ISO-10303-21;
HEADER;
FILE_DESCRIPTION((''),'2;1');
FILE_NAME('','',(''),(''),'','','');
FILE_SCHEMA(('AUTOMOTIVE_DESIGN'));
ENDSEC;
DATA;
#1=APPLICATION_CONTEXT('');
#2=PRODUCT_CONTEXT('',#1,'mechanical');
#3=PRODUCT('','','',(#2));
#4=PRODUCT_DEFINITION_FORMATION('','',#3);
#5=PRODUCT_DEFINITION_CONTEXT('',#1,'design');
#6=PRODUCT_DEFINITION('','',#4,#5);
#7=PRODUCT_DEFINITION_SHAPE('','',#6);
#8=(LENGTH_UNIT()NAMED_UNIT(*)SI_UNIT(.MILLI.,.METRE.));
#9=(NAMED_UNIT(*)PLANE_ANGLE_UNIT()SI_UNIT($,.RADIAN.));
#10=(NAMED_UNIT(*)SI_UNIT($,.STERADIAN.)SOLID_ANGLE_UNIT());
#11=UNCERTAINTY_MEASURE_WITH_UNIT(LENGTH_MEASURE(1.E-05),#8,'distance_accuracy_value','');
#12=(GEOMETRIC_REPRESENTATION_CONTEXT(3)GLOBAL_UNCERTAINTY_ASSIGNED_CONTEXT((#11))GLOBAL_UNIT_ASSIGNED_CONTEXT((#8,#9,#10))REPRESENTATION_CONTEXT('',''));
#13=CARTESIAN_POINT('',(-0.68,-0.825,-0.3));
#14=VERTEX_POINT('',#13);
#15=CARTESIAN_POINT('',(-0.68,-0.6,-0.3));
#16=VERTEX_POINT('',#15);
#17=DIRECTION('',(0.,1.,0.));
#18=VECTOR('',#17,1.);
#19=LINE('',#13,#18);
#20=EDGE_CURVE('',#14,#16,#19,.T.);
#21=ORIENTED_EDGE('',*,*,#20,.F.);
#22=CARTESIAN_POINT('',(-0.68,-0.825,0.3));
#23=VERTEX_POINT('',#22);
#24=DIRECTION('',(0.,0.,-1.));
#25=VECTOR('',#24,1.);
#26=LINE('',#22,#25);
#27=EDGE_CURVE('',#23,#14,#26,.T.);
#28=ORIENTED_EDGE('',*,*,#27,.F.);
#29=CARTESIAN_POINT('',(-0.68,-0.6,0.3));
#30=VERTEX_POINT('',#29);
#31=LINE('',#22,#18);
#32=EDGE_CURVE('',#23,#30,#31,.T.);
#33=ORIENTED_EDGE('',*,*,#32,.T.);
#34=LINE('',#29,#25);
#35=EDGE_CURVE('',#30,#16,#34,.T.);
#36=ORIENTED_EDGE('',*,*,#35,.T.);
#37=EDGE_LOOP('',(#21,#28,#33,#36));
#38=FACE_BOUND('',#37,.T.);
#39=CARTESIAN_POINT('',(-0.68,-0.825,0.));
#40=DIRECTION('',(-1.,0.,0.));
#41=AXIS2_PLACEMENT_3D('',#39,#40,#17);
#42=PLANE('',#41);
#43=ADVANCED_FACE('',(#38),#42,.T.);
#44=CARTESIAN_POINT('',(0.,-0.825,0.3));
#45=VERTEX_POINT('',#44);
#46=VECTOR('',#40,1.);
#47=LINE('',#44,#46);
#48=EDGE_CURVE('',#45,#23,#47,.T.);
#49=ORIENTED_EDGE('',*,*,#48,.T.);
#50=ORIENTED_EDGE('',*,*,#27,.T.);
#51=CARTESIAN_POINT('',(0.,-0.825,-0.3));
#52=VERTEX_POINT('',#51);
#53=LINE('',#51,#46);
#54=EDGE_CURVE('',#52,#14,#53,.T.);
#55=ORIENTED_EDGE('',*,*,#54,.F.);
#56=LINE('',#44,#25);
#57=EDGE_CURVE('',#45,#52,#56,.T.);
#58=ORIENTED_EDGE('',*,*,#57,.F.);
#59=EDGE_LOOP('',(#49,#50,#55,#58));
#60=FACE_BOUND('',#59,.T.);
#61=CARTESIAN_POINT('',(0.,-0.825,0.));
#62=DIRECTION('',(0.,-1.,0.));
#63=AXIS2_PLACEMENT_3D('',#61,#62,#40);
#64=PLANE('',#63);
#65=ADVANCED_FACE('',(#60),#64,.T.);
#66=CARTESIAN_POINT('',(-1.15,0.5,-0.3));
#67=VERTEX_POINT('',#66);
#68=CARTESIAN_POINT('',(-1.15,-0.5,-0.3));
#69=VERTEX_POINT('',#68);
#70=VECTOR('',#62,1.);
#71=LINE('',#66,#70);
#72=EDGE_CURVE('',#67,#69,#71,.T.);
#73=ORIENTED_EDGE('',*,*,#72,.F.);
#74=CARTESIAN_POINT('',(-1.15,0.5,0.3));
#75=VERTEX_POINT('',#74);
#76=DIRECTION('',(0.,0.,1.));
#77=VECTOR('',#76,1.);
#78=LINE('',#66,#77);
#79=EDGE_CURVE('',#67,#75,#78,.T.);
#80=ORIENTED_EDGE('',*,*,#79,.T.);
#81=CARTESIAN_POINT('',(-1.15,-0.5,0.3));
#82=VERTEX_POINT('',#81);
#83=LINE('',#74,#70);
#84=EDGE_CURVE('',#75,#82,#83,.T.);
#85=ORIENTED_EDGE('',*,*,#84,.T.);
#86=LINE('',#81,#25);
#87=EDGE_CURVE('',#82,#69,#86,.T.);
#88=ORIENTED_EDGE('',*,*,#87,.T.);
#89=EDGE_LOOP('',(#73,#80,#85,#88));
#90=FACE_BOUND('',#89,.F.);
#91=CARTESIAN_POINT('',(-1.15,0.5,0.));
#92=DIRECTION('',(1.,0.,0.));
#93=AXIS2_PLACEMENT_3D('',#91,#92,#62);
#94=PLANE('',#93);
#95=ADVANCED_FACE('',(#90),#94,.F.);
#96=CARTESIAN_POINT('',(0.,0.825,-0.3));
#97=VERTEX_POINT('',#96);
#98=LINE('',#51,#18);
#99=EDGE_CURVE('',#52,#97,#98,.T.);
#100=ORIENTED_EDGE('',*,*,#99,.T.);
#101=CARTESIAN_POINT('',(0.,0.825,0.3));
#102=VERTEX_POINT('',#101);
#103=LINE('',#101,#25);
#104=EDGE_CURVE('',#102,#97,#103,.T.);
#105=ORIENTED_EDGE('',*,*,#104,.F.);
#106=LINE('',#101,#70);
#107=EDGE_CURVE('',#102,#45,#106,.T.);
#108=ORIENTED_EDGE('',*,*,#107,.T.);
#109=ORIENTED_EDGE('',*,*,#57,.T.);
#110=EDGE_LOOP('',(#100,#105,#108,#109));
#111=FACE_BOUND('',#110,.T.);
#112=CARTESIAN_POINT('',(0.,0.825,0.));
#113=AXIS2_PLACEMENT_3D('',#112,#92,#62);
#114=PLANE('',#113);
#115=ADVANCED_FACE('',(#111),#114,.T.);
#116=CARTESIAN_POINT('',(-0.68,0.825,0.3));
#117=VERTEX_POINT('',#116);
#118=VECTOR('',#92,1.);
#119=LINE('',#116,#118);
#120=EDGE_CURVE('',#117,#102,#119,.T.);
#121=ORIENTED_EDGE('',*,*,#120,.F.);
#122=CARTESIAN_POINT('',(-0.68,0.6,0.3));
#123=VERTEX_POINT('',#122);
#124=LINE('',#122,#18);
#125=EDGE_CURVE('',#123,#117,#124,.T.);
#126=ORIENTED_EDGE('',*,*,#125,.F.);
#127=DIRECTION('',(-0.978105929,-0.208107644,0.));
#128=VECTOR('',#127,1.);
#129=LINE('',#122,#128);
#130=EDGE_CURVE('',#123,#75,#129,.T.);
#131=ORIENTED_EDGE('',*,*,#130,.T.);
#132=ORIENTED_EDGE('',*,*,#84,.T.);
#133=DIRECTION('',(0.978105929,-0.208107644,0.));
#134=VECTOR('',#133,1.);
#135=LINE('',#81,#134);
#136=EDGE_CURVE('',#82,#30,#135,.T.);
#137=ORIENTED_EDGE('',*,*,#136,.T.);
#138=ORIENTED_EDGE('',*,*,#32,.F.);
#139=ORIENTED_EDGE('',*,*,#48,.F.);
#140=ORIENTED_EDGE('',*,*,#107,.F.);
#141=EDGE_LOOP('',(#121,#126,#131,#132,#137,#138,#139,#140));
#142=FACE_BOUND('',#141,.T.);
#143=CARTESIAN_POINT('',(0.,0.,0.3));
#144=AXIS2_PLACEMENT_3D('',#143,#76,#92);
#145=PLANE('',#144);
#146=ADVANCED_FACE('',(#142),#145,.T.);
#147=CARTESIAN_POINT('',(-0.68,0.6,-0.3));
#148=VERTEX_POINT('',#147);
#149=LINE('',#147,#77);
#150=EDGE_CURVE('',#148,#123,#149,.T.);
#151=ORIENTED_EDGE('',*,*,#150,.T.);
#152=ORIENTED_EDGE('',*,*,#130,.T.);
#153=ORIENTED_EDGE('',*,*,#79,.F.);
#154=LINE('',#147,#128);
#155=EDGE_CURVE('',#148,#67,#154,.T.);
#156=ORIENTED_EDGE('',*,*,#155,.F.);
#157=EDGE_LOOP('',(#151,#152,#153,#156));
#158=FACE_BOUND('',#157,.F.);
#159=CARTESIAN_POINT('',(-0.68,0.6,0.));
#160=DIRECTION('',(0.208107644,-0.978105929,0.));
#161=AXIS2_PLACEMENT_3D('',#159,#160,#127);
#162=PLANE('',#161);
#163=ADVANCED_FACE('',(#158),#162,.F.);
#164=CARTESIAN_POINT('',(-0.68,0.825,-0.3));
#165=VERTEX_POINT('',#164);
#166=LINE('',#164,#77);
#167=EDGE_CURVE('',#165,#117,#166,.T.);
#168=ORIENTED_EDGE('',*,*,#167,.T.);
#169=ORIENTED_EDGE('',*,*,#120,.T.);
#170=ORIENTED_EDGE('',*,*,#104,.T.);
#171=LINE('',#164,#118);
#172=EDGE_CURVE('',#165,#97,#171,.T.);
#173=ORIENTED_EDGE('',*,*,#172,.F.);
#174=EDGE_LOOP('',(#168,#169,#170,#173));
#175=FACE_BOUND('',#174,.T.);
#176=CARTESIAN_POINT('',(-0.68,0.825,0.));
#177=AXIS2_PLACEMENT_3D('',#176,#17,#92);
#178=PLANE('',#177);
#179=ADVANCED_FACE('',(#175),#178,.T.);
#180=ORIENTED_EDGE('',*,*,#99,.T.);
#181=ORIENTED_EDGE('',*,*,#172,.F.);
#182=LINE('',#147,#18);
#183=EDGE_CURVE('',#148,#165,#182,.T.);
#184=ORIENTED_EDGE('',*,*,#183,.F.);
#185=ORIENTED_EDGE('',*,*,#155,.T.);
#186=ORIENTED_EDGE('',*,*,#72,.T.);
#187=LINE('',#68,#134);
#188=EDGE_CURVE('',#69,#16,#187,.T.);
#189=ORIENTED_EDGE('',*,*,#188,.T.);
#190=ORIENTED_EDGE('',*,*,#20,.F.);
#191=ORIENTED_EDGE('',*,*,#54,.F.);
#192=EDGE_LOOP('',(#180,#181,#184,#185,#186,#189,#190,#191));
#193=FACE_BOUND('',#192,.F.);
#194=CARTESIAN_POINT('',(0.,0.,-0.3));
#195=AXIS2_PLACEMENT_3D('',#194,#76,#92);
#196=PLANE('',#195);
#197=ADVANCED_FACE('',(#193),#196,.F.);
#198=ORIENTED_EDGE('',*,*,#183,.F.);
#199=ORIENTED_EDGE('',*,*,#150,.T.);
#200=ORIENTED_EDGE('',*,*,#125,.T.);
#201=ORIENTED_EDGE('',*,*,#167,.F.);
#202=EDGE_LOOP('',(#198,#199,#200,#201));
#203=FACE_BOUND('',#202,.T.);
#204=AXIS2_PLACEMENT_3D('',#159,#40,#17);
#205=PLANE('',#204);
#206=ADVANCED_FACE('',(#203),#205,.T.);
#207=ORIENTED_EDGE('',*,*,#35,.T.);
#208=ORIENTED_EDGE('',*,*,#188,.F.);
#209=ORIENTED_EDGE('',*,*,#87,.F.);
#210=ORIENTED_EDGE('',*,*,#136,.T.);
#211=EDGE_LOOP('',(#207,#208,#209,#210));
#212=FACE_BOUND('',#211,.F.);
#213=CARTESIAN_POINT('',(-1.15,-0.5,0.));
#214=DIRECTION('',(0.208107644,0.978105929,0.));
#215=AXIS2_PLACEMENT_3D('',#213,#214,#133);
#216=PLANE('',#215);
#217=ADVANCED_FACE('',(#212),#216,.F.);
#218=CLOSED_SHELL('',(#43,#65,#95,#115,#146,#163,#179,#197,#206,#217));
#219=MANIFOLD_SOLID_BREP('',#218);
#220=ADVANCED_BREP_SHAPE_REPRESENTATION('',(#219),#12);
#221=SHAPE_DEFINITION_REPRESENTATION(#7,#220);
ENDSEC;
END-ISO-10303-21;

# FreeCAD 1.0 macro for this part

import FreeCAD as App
import Part
import Sketcher
from FreeCAD import Vector
Q = App.Units.Quantity


def add_polygon(sketch, points):
    """Adds a closed chain of lines whose ends are joined by coincident constraints."""
    first, n = sketch.GeometryCount, len(points)
    for a, b in zip(points, points[1:] + points[:1]):
        sketch.addGeometry(Part.LineSegment(App.Vector(*a, 0), App.Vector(*b, 0)), False)
    for i in range(n):
        sketch.addConstraint(Sketcher.Constraint("Coincident", first + i, 2, first + (i + 1) % n, 1))

doc = App.newDocument("Part")
body = doc.addObject("PartDesign::Body", "Body")

# Sketch on XY plane
sketch1 = body.newObject("Sketcher::SketchObject", "Sketch")
sketch1.AttachmentSupport = (doc.getObject("XY_Plane"), [""])
sketch1.MapMode = "FlatFace"
add_polygon(sketch1, [(0, 0.82), (-0.68, 0.82), (-0.68, 0.6), (-1.15, 0.5), (-1.15, -0.5), (-0.68, -0.6), (-0.68, -0.82), (0, -0.82)])  # lines 0-7
sketch1.addConstraint(Sketcher.Constraint("Horizontal", 0))
sketch1.addConstraint(Sketcher.Constraint("Vertical", 1))
sketch1.addConstraint(Sketcher.Constraint("Vertical", 3))
sketch1.addConstraint(Sketcher.Constraint("Vertical", 5))
sketch1.addConstraint(Sketcher.Constraint("Horizontal", 6))
sketch1.addConstraint(Sketcher.Constraint("Vertical", 7))
sketch1.addConstraint(Sketcher.Constraint("Symmetric", 6, 2, 7, 2, -1, 1))
sketch1.addConstraint(Sketcher.Constraint("Symmetric", 1, 2, 4, 2, -1))
sketch1.addConstraint(Sketcher.Constraint("Equal", 2, 4))
sketch1.addConstraint(Sketcher.Constraint("DistanceY", 3, 2, 3, 1, Q("1 mm")))
sketch1.addConstraint(Sketcher.Constraint("DistanceX", 0, 2, 0, 1, Q("0.68 mm")))
sketch1.addConstraint(Sketcher.Constraint("DistanceY", 7, 1, 7, 2, Q("1.65 mm")))
sketch1.addConstraint(Sketcher.Constraint("DistanceY", 4, 2, 1, 2, Q("1.2 mm")))
sketch1.addConstraint(Sketcher.Constraint("DistanceX", 2, 2, -1, 1, Q("1.15 mm")))
pad1 = body.newObject("PartDesign::Pad", "Pad")
pad1.Profile = sketch1
pad1.Length = 0.6
pad1.Midplane = True

doc.recompute()
